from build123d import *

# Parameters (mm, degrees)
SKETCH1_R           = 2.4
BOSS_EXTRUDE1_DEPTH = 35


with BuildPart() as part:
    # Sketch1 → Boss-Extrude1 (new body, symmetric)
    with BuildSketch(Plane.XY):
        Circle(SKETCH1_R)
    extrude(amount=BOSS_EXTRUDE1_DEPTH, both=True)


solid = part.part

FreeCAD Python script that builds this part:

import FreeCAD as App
import Part
import Sketcher

doc = App.newDocument("Part")
body = doc.addObject("PartDesign::Body", "Body")

sketch1 = doc.addObject("Sketcher::SketchObject", "Sketch")
body.addObject(sketch1)
sketch1.AttachmentSupport = (doc.XY_Plane, [""])
sketch1.MapMode = "FlatFace"
sketch1.addGeometry(Part.Circle(App.Vector(0, 0, 0), App.Vector(0, 0, 1), 2.4), False)
sketch1.addConstraint(Sketcher.Constraint("Coincident", 0, 3, -1, 1))
sketch1.addConstraint(Sketcher.Constraint("Diameter", 0, 4.8))
pad1 = doc.addObject("PartDesign::Pad", "Pad")
body.addObject(pad1)
pad1.Profile = sketch1
pad1.Length = 70
pad1.Midplane = True

doc.recompute()
